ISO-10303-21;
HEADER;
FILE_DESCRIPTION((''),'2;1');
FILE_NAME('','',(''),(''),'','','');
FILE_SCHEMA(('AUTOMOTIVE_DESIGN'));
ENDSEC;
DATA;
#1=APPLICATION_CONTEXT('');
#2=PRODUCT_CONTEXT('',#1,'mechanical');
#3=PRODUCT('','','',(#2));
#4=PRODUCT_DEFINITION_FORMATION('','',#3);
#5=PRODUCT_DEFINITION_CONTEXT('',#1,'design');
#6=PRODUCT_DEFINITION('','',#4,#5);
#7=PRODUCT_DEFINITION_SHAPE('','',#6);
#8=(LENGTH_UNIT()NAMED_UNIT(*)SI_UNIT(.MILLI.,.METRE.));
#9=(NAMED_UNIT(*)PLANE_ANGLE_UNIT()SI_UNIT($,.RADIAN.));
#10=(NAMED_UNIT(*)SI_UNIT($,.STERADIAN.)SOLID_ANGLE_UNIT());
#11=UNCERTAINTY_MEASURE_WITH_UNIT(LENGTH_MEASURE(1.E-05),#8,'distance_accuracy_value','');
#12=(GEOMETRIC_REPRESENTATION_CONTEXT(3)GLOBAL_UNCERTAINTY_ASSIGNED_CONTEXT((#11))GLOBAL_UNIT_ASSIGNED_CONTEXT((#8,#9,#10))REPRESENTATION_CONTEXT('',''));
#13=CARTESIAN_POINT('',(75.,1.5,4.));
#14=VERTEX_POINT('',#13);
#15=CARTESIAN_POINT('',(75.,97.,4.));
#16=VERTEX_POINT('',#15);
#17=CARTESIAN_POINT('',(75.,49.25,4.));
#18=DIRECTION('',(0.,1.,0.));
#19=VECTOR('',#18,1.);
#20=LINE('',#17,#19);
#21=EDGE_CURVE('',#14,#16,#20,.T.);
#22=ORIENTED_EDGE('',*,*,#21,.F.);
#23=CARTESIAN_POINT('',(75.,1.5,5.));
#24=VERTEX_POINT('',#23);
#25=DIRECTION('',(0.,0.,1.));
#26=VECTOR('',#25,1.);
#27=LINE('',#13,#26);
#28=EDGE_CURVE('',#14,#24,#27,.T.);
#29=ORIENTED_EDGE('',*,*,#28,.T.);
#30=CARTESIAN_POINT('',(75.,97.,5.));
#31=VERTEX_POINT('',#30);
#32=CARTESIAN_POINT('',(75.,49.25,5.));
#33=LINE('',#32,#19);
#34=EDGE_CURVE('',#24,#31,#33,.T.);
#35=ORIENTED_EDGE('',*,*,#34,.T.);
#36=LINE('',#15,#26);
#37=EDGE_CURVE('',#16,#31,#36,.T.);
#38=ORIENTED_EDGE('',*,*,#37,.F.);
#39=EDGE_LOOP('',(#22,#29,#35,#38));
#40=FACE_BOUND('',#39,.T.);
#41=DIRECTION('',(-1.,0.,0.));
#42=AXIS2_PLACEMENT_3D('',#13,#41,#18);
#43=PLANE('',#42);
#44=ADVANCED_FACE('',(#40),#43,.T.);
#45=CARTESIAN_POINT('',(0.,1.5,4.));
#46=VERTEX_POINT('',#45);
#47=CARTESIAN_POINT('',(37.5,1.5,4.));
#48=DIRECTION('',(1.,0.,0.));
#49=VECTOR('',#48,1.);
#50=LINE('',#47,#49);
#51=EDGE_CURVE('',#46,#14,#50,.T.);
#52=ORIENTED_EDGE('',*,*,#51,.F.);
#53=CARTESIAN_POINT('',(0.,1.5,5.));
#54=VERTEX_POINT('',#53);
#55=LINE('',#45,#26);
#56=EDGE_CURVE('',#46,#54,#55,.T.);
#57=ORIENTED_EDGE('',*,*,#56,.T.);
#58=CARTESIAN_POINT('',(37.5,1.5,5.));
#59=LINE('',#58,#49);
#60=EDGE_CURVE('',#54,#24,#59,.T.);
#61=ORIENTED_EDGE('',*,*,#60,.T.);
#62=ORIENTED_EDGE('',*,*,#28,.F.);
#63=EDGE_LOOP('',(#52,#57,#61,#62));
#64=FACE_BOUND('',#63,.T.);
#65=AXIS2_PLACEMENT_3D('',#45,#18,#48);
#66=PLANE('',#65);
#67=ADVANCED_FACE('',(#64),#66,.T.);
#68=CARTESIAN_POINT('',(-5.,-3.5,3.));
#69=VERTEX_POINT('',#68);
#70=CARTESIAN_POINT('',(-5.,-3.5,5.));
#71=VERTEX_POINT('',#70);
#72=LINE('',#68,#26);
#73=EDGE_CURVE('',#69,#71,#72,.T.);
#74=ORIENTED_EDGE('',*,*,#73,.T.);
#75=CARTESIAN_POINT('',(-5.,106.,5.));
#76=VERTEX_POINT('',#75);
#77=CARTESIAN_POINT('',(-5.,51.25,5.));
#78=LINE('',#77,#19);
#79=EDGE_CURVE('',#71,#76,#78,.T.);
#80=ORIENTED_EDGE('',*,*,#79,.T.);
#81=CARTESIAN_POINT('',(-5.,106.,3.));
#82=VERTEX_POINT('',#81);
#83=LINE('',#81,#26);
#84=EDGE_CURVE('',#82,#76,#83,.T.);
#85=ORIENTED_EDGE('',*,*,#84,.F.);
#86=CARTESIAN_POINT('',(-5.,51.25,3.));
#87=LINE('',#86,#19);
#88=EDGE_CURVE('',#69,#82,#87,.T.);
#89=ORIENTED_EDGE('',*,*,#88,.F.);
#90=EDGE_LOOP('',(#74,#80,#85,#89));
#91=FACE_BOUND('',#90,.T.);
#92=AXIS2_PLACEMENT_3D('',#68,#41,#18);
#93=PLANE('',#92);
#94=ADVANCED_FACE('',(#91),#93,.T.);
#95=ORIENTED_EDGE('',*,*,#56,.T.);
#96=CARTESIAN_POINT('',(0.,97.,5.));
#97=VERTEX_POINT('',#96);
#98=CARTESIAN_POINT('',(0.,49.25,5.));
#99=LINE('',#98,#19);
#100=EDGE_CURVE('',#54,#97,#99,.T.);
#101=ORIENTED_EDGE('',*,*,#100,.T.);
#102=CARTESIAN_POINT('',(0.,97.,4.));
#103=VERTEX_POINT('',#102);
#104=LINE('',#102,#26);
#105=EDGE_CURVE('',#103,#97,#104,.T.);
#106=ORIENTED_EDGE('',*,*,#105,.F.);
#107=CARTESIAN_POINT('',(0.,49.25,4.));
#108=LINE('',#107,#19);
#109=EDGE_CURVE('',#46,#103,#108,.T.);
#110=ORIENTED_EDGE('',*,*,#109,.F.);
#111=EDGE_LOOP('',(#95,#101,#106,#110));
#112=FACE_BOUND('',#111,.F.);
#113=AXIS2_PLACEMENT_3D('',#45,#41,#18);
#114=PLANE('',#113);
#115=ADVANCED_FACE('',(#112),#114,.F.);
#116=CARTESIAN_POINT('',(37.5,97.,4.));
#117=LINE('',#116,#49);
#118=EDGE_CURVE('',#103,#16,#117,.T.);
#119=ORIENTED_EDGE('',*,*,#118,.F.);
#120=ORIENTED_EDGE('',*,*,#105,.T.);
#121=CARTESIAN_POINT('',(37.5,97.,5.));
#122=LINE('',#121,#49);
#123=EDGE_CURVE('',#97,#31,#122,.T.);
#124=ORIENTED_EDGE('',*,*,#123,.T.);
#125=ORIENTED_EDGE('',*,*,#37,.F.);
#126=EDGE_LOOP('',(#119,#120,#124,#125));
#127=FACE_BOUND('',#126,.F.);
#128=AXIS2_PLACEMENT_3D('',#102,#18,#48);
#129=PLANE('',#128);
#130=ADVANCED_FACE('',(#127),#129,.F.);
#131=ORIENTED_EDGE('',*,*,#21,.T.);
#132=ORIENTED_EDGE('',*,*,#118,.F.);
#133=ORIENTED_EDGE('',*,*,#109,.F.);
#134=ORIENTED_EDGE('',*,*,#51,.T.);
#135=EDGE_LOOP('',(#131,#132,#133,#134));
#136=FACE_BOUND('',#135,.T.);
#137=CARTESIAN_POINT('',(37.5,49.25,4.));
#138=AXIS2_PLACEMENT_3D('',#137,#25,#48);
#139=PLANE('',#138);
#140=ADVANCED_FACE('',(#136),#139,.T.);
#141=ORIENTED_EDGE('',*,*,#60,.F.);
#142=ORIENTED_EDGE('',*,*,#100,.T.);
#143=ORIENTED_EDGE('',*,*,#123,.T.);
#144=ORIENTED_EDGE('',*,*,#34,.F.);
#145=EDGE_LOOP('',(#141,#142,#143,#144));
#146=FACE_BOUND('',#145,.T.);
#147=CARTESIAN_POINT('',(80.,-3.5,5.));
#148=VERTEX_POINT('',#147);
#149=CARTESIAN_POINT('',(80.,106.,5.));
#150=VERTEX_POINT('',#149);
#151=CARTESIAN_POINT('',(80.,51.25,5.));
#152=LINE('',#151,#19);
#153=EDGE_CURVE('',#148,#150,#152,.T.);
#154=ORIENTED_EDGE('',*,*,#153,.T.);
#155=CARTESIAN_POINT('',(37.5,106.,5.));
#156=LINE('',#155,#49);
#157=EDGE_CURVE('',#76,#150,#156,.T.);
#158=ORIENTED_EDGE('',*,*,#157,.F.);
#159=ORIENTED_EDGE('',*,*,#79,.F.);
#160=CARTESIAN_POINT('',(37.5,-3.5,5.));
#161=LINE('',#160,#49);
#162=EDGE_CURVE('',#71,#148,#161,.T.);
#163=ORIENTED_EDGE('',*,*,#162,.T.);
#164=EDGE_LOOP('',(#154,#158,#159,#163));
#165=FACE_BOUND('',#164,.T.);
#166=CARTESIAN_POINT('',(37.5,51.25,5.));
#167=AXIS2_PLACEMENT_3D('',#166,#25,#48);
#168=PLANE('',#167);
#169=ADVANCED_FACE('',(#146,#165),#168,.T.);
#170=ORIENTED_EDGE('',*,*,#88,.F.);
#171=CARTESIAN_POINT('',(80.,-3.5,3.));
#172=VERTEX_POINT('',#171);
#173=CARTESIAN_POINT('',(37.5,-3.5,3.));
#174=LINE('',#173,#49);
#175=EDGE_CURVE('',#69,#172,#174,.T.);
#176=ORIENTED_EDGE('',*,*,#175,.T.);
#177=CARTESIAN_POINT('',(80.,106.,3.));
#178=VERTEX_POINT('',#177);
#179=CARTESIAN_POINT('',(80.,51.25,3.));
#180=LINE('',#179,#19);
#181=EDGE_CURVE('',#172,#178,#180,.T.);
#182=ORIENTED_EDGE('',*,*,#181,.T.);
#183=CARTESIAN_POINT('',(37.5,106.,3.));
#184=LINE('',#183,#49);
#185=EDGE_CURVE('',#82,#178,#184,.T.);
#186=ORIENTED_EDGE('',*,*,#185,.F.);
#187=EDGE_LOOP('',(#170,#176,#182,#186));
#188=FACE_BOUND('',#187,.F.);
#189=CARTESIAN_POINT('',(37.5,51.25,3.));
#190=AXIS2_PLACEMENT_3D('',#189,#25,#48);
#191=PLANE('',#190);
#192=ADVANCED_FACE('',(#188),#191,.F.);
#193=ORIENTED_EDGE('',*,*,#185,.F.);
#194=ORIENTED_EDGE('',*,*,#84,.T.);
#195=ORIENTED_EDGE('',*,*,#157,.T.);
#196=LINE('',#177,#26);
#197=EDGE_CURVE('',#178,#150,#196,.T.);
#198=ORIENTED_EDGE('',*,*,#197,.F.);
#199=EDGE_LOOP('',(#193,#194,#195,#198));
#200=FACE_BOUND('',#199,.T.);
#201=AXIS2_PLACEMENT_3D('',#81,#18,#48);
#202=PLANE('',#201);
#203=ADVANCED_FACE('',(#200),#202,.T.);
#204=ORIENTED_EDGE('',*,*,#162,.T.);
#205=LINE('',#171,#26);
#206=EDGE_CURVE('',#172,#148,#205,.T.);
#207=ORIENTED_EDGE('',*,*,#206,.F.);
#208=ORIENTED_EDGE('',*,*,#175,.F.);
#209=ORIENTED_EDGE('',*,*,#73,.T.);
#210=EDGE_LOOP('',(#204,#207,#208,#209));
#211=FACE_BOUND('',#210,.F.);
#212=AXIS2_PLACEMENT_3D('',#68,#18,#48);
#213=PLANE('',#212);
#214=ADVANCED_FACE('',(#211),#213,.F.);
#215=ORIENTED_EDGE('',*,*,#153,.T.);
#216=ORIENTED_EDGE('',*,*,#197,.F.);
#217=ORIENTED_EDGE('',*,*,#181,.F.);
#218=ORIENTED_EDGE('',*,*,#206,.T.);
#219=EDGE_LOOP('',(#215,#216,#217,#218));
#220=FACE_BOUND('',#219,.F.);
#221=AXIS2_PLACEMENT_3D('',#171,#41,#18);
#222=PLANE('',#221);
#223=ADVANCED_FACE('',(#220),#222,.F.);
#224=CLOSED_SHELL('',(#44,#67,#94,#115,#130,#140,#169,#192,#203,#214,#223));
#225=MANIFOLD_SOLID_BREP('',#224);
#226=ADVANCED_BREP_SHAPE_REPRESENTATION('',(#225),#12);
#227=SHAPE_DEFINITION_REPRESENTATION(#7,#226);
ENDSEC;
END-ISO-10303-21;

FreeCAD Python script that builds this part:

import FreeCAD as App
import Part
import Sketcher
from FreeCAD import Vector

doc = App.newDocument("Part")
body = doc.addObject("PartDesign::Body", "Body")

# Sketch on XY plane
sketch1 = body.newObject("Sketcher::SketchObject", "Sketch")
sketch1.AttachmentSupport = (doc.getObject("XY_Plane"), [""])
sketch1.MapMode = "FlatFace"
sketch1.AttachmentOffset = App.Placement(Vector(0, 0, 4), App.Rotation())
sketch1.addGeometry(Part.LineSegment(Vector(0, 97, 0), Vector(0, 1.5, 0)), False)
sketch1.addGeometry(Part.LineSegment(Vector(0, 1.5, 0), Vector(75, 1.5, 0)), False)
sketch1.addGeometry(Part.LineSegment(Vector(75, 1.5, 0), Vector(75, 97, 0)), False)
sketch1.addGeometry(Part.LineSegment(Vector(75, 97, 0), Vector(0, 97, 0)), False)
sketch1.addConstraint(Sketcher.Constraint("Coincident", 0, 2, 1, 1))
sketch1.addConstraint(Sketcher.Constraint("Coincident", 1, 2, 2, 1))
sketch1.addConstraint(Sketcher.Constraint("Coincident", 2, 2, 3, 1))
sketch1.addConstraint(Sketcher.Constraint("Coincident", 3, 2, 0, 1))
sketch1.addConstraint(Sketcher.Constraint("Vertical", 0))
sketch1.addConstraint(Sketcher.Constraint("Horizontal", 1))
sketch1.addConstraint(Sketcher.Constraint("Vertical", 2))
sketch1.addConstraint(Sketcher.Constraint("Horizontal", 3))
sketch1.addConstraint(Sketcher.Constraint("PointOnObject", 0, 2, -2))
sketch1.addConstraint(Sketcher.Constraint("DistanceX", 1, 1, 1, 2, 75.0))
sketch1.addConstraint(Sketcher.Constraint("DistanceY", 0, 2, 0, 1, 95.5))
sketch1.addConstraint(Sketcher.Constraint("DistanceY", -1, 1, 2, 2, 97.0))
pad1 = body.newObject("PartDesign::Pad", "Pad")
pad1.Profile = sketch1
pad1.Length = 1
body2 = doc.addObject("PartDesign::Body", "Body001")

# Sketch on XY plane
sketch2 = body2.newObject("Sketcher::SketchObject", "Sketch001")
sketch2.AttachmentSupport = (doc.getObject("XY_Plane001"), [""])
sketch2.MapMode = "FlatFace"
sketch2.AttachmentOffset = App.Placement(Vector(0, 0, 3), App.Rotation())
sketch2.addGeometry(Part.LineSegment(Vector(-5, 106, 0), Vector(-5, -3.5, 0)), False)
sketch2.addGeometry(Part.LineSegment(Vector(-5, -3.5, 0), Vector(80, -3.5, 0)), False)
sketch2.addGeometry(Part.LineSegment(Vector(80, -3.5, 0), Vector(80, 106, 0)), False)
sketch2.addGeometry(Part.LineSegment(Vector(80, 106, 0), Vector(-5, 106, 0)), False)
sketch2.addConstraint(Sketcher.Constraint("Coincident", 0, 2, 1, 1))
sketch2.addConstraint(Sketcher.Constraint("Coincident", 1, 2, 2, 1))
sketch2.addConstraint(Sketcher.Constraint("Coincident", 2, 2, 3, 1))
sketch2.addConstraint(Sketcher.Constraint("Coincident", 3, 2, 0, 1))
sketch2.addConstraint(Sketcher.Constraint("Vertical", 0))
sketch2.addConstraint(Sketcher.Constraint("Horizontal", 1))
sketch2.addConstraint(Sketcher.Constraint("Vertical", 2))
sketch2.addConstraint(Sketcher.Constraint("Horizontal", 3))
sketch2.addConstraint(Sketcher.Constraint("DistanceX", 1, 1, 1, 2, 85.0))
sketch2.addConstraint(Sketcher.Constraint("DistanceY", 0, 2, 0, 1, 109.5))
sketch2.addConstraint(Sketcher.Constraint("DistanceX", 0, 2, -1, 1, 5.0))
sketch2.addConstraint(Sketcher.Constraint("DistanceY", -1, 1, 2, 2, 106.0))
pad2 = body2.newObject("PartDesign::Pad", "Pad001")
pad2.Profile = sketch2
pad2.Length = 2
doc.recompute()

boolean = body2.newObject("PartDesign::Boolean", "Boolean")
boolean.Type = "Cut"
boolean.addObjects([body])

doc.recompute()
